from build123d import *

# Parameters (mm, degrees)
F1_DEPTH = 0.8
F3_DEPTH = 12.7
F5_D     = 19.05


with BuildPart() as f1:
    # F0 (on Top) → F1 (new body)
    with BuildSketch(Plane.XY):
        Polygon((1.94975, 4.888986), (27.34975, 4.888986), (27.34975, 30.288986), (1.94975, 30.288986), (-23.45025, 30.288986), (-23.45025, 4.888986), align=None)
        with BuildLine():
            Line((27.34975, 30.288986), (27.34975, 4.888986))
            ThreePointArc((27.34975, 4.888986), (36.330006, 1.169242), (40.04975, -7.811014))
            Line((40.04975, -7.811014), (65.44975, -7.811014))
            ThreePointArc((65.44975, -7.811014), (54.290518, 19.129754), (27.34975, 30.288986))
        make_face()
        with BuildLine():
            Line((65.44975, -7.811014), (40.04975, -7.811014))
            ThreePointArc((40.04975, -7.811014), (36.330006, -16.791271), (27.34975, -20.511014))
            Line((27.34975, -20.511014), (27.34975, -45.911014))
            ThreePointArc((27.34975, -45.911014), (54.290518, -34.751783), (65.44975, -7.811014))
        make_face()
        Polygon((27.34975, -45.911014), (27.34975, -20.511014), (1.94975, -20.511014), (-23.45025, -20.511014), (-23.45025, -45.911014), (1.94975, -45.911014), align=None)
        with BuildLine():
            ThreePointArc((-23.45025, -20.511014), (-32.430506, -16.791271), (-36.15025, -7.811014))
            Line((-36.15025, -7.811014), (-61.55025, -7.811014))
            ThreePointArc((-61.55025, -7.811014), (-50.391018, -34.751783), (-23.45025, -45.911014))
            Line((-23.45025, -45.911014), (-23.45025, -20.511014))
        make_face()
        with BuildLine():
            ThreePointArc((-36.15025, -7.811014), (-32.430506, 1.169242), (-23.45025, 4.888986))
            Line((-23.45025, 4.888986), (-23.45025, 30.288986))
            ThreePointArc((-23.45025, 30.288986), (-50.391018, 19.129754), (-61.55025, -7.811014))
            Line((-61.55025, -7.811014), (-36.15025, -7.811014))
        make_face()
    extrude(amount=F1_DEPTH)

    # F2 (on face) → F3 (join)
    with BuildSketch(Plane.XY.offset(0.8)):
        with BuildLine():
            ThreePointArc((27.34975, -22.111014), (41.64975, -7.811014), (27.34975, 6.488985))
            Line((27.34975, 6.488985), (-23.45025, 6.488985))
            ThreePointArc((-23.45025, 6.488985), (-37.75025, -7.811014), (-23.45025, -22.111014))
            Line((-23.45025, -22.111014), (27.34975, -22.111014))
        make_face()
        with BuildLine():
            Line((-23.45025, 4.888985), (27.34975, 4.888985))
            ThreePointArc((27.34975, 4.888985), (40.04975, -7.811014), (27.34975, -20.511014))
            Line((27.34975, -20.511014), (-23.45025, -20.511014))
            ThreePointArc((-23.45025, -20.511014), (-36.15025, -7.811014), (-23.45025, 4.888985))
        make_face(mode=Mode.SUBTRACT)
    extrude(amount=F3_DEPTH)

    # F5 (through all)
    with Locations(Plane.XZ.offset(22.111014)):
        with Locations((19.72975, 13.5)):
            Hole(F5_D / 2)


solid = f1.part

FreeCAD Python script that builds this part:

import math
import FreeCAD as App
import Part
import Sketcher
Q = App.Units.Quantity

doc = App.newDocument("Part")
body = doc.addObject("PartDesign::Body", "Body")

sketch1 = body.newObject("Sketcher::SketchObject", "Sketch")
sketch1.AttachmentSupport = (doc.getObject("XY_Plane"), [""])
sketch1.MapMode = "FlatFace"
sketch1.addGeometry(Part.LineSegment(App.Vector(27.34975, 30.288986, 0), App.Vector(-23.45025, 30.288986, 0)), False)
sketch1.addGeometry(Part.ArcOfCircle(Part.Circle(App.Vector(-23.450249, -7.811015, 0), App.Vector(0, 0, 1), 38.100001), math.radians(90.000002), math.radians(179.999998)), False)
sketch1.addGeometry(Part.ArcOfCircle(Part.Circle(App.Vector(-23.45025, -7.811014, 0), App.Vector(0, 0, 1), 38.1), math.radians(179.999999), math.radians(270.000001)), False)
sketch1.addGeometry(Part.LineSegment(App.Vector(-23.45025, -45.911014, 0), App.Vector(27.34975, -45.911014, 0)), False)
sketch1.addGeometry(Part.ArcOfCircle(Part.Circle(App.Vector(27.34975, -7.811014, 0), App.Vector(0, 0, 1), 38.1), math.radians(-90.000001), math.radians(0.000001)), False)
sketch1.addGeometry(Part.ArcOfCircle(Part.Circle(App.Vector(27.349749, -7.811015, 0), App.Vector(0, 0, 1), 38.100001), math.radians(0.000002), math.radians(89.999998)), False)
sketch1.addGeometry(Part.LineSegment(App.Vector(-23.45025, 4.888986, 0), App.Vector(27.34975, 4.888986, 0)), False)
sketch1.addGeometry(Part.ArcOfCircle(Part.Circle(App.Vector(27.34975, -7.811014, 0), App.Vector(0, 0, 1), 12.7), math.radians(0.000002), math.radians(89.999998)), False)
sketch1.addGeometry(Part.ArcOfCircle(Part.Circle(App.Vector(27.349751, -7.811015, 0), App.Vector(0, 0, 1), 12.699999), math.radians(-90.000006), math.radians(0.000006)), False)
sketch1.addGeometry(Part.LineSegment(App.Vector(27.34975, -20.511014, 0), App.Vector(-23.45025, -20.511014, 0)), False)
sketch1.addGeometry(Part.ArcOfCircle(Part.Circle(App.Vector(-23.450251, -7.811015, 0), App.Vector(0, 0, 1), 12.699999), math.radians(179.999994), math.radians(270.000006)), False)
sketch1.addGeometry(Part.ArcOfCircle(Part.Circle(App.Vector(-23.45025, -7.811014, 0), App.Vector(0, 0, 1), 12.7), math.radians(90.000002), math.radians(179.999998)), False)
sketch1.addConstraint(Sketcher.Constraint("Tangent", 0, 2, 1, 1))
sketch1.addConstraint(Sketcher.Constraint("Tangent", 1, 2, 2, 1))
sketch1.addConstraint(Sketcher.Constraint("Tangent", 2, 2, 3, 1))
sketch1.addConstraint(Sketcher.Constraint("Tangent", 3, 2, 4, 1))
sketch1.addConstraint(Sketcher.Constraint("Tangent", 4, 2, 5, 1))
sketch1.addConstraint(Sketcher.Constraint("Tangent", 5, 2, 0, 1))
sketch1.addConstraint(Sketcher.Constraint("Tangent", 6, 2, 7, 2))
sketch1.addConstraint(Sketcher.Constraint("Tangent", 7, 1, 8, 2))
sketch1.addConstraint(Sketcher.Constraint("Tangent", 8, 1, 9, 1))
sketch1.addConstraint(Sketcher.Constraint("Tangent", 9, 2, 10, 2))
sketch1.addConstraint(Sketcher.Constraint("Tangent", 10, 1, 11, 2))
sketch1.addConstraint(Sketcher.Constraint("Tangent", 11, 1, 6, 1))
sketch1.addConstraint(Sketcher.Constraint("Horizontal", 0))
sketch1.addConstraint(Sketcher.Constraint("Horizontal", 3))
sketch1.addConstraint(Sketcher.Constraint("Horizontal", 6))
sketch1.addConstraint(Sketcher.Constraint("Horizontal", 9))
sketch1.addConstraint(Sketcher.Constraint("Coincident", 7, 3, 4, 3))
sketch1.addConstraint(Sketcher.Constraint("Coincident", 10, 3, 1, 3))
sketch1.addConstraint(Sketcher.Constraint("Equal", 1, 2))
sketch1.addConstraint(Sketcher.Constraint("Equal", 2, 4))
sketch1.addConstraint(Sketcher.Constraint("Equal", 7, 8))
sketch1.addConstraint(Sketcher.Constraint("Horizontal", 11, 3, 1, 2))
sketch1.addConstraint(Sketcher.Constraint("Horizontal", 1, 2, 4, 2))
sketch1.addConstraint(Sketcher.Constraint("Horizontal", 4, 2, 7, 1))
sketch1.addConstraint(Sketcher.Constraint("Horizontal", 7, 1, 10, 1))
sketch1.addConstraint(Sketcher.Constraint("Radius", 1, Q("1.5 in")))
sketch1.addConstraint(Sketcher.Constraint("Radius", 7, Q("0.5 in")))
sketch1.addConstraint(Sketcher.Constraint("DistanceX", 0, 2, 0, 1, Q("2 in")))
sketch1.addConstraint(Sketcher.Constraint("DistanceX", 1, 3, -1, 1, Q("23.450249 mm")))
sketch1.addConstraint(Sketcher.Constraint("DistanceY", 1, 3, -1, 1, Q("7.811015 mm")))
pad1 = body.newObject("PartDesign::Pad", "Pad")
pad1.Profile = sketch1
pad1.Length = 0.8

sketch2 = body.newObject("Sketcher::SketchObject", "Sketch001")
sketch2.AttachmentSupport = (doc.getObject("XY_Plane"), [""])
sketch2.MapMode = "FlatFace"
sketch2.AttachmentOffset = App.Placement(App.Vector(0, 0, 0.8), App.Rotation())
sketch2.addGeometry(Part.ArcOfCircle(Part.Circle(App.Vector(27.34975, -7.811014, 0), App.Vector(0, 0, 1), 14.3), math.radians(-90.000002), math.radians(90.000002)), False)
sketch2.addGeometry(Part.LineSegment(App.Vector(27.34975, 6.488985, 0), App.Vector(-23.45025, 6.488985, 0)), False)
sketch2.addGeometry(Part.ArcOfCircle(Part.Circle(App.Vector(-23.45025, -7.811014, 0), App.Vector(0, 0, 1), 14.3), math.radians(89.999998), math.radians(270.000002)), False)
sketch2.addGeometry(Part.LineSegment(App.Vector(-23.45025, -22.111014, 0), App.Vector(27.34975, -22.111014, 0)), False)
sketch2.addGeometry(Part.ArcOfCircle(Part.Circle(App.Vector(-23.45025, -7.811014, 0), App.Vector(0, 0, 1), 12.7), math.radians(89.999998), math.radians(270.000002)), False)
sketch2.addGeometry(Part.LineSegment(App.Vector(-23.45025, 4.888985, 0), App.Vector(27.34975, 4.888985, 0)), False)
sketch2.addGeometry(Part.ArcOfCircle(Part.Circle(App.Vector(27.34975, -7.811014, 0), App.Vector(0, 0, 1), 12.7), math.radians(-90.000002), math.radians(90.000002)), False)
sketch2.addGeometry(Part.LineSegment(App.Vector(27.34975, -20.511014, 0), App.Vector(-23.45025, -20.511014, 0)), False)
sketch2.addConstraint(Sketcher.Constraint("Tangent", 0, 2, 1, 1))
sketch2.addConstraint(Sketcher.Constraint("Tangent", 1, 2, 2, 1))
sketch2.addConstraint(Sketcher.Constraint("Tangent", 2, 2, 3, 1))
sketch2.addConstraint(Sketcher.Constraint("Tangent", 3, 2, 0, 1))
sketch2.addConstraint(Sketcher.Constraint("Tangent", 4, 1, 5, 1))
sketch2.addConstraint(Sketcher.Constraint("Tangent", 5, 2, 6, 2))
sketch2.addConstraint(Sketcher.Constraint("Tangent", 6, 1, 7, 1))
sketch2.addConstraint(Sketcher.Constraint("Tangent", 7, 2, 4, 2))
sketch2.addConstraint(Sketcher.Constraint("Horizontal", 1))
sketch2.addConstraint(Sketcher.Constraint("Horizontal", 3))
sketch2.addConstraint(Sketcher.Constraint("Horizontal", 5))
sketch2.addConstraint(Sketcher.Constraint("Horizontal", 7))
sketch2.addConstraint(Sketcher.Constraint("Coincident", 4, 3, 2, 3))
sketch2.addConstraint(Sketcher.Constraint("Vertical", 6, 3, 0, 2))
sketch2.addConstraint(Sketcher.Constraint("Radius", 4, Q("0.5 in")))
sketch2.addConstraint(Sketcher.Constraint("DistanceX", 1, 2, 1, 1, Q("2 in")))
sketch2.addConstraint(Sketcher.Constraint("Radius", 0, Q("14.3 mm")))
sketch2.addConstraint(Sketcher.Constraint("DistanceX", -1, 1, 0, 3, Q("27.34975 mm")))
sketch2.addConstraint(Sketcher.Constraint("DistanceY", 0, 3, -1, 1, Q("7.811014 mm")))
pad2 = body.newObject("PartDesign::Pad", "Pad001")
pad2.Profile = sketch2
pad2.Length = Q("0.5 in")

sketch3 = body.newObject("Sketcher::SketchObject", "Sketch002")
sketch3.AttachmentSupport = (doc.getObject("XZ_Plane"), [""])
sketch3.MapMode = "FlatFace"
sketch3.AttachmentOffset = App.Placement(App.Vector(0, 0, 22.111014), App.Rotation())
sketch3.addGeometry(Part.Circle(App.Vector(19.72975, 13.5, 0), App.Vector(0, 0, 1), 9.525), False)
sketch3.addConstraint(Sketcher.Constraint("Diameter", 0, Q("0.75 in")))
sketch3.addConstraint(Sketcher.Constraint("DistanceY", -1, 1, 0, 3, Q("13.5 mm")))
sketch3.addConstraint(Sketcher.Constraint("DistanceX", -1, 1, 0, 3, Q("19.72975 mm")))
doc.recompute()
hole = body.newObject("PartDesign::Hole", "Hole")
hole.Profile = sketch3
hole.ThreadType = "None"
hole.Diameter = Q("0.75 in")
hole.DepthType = "ThroughAll"

doc.recompute()
